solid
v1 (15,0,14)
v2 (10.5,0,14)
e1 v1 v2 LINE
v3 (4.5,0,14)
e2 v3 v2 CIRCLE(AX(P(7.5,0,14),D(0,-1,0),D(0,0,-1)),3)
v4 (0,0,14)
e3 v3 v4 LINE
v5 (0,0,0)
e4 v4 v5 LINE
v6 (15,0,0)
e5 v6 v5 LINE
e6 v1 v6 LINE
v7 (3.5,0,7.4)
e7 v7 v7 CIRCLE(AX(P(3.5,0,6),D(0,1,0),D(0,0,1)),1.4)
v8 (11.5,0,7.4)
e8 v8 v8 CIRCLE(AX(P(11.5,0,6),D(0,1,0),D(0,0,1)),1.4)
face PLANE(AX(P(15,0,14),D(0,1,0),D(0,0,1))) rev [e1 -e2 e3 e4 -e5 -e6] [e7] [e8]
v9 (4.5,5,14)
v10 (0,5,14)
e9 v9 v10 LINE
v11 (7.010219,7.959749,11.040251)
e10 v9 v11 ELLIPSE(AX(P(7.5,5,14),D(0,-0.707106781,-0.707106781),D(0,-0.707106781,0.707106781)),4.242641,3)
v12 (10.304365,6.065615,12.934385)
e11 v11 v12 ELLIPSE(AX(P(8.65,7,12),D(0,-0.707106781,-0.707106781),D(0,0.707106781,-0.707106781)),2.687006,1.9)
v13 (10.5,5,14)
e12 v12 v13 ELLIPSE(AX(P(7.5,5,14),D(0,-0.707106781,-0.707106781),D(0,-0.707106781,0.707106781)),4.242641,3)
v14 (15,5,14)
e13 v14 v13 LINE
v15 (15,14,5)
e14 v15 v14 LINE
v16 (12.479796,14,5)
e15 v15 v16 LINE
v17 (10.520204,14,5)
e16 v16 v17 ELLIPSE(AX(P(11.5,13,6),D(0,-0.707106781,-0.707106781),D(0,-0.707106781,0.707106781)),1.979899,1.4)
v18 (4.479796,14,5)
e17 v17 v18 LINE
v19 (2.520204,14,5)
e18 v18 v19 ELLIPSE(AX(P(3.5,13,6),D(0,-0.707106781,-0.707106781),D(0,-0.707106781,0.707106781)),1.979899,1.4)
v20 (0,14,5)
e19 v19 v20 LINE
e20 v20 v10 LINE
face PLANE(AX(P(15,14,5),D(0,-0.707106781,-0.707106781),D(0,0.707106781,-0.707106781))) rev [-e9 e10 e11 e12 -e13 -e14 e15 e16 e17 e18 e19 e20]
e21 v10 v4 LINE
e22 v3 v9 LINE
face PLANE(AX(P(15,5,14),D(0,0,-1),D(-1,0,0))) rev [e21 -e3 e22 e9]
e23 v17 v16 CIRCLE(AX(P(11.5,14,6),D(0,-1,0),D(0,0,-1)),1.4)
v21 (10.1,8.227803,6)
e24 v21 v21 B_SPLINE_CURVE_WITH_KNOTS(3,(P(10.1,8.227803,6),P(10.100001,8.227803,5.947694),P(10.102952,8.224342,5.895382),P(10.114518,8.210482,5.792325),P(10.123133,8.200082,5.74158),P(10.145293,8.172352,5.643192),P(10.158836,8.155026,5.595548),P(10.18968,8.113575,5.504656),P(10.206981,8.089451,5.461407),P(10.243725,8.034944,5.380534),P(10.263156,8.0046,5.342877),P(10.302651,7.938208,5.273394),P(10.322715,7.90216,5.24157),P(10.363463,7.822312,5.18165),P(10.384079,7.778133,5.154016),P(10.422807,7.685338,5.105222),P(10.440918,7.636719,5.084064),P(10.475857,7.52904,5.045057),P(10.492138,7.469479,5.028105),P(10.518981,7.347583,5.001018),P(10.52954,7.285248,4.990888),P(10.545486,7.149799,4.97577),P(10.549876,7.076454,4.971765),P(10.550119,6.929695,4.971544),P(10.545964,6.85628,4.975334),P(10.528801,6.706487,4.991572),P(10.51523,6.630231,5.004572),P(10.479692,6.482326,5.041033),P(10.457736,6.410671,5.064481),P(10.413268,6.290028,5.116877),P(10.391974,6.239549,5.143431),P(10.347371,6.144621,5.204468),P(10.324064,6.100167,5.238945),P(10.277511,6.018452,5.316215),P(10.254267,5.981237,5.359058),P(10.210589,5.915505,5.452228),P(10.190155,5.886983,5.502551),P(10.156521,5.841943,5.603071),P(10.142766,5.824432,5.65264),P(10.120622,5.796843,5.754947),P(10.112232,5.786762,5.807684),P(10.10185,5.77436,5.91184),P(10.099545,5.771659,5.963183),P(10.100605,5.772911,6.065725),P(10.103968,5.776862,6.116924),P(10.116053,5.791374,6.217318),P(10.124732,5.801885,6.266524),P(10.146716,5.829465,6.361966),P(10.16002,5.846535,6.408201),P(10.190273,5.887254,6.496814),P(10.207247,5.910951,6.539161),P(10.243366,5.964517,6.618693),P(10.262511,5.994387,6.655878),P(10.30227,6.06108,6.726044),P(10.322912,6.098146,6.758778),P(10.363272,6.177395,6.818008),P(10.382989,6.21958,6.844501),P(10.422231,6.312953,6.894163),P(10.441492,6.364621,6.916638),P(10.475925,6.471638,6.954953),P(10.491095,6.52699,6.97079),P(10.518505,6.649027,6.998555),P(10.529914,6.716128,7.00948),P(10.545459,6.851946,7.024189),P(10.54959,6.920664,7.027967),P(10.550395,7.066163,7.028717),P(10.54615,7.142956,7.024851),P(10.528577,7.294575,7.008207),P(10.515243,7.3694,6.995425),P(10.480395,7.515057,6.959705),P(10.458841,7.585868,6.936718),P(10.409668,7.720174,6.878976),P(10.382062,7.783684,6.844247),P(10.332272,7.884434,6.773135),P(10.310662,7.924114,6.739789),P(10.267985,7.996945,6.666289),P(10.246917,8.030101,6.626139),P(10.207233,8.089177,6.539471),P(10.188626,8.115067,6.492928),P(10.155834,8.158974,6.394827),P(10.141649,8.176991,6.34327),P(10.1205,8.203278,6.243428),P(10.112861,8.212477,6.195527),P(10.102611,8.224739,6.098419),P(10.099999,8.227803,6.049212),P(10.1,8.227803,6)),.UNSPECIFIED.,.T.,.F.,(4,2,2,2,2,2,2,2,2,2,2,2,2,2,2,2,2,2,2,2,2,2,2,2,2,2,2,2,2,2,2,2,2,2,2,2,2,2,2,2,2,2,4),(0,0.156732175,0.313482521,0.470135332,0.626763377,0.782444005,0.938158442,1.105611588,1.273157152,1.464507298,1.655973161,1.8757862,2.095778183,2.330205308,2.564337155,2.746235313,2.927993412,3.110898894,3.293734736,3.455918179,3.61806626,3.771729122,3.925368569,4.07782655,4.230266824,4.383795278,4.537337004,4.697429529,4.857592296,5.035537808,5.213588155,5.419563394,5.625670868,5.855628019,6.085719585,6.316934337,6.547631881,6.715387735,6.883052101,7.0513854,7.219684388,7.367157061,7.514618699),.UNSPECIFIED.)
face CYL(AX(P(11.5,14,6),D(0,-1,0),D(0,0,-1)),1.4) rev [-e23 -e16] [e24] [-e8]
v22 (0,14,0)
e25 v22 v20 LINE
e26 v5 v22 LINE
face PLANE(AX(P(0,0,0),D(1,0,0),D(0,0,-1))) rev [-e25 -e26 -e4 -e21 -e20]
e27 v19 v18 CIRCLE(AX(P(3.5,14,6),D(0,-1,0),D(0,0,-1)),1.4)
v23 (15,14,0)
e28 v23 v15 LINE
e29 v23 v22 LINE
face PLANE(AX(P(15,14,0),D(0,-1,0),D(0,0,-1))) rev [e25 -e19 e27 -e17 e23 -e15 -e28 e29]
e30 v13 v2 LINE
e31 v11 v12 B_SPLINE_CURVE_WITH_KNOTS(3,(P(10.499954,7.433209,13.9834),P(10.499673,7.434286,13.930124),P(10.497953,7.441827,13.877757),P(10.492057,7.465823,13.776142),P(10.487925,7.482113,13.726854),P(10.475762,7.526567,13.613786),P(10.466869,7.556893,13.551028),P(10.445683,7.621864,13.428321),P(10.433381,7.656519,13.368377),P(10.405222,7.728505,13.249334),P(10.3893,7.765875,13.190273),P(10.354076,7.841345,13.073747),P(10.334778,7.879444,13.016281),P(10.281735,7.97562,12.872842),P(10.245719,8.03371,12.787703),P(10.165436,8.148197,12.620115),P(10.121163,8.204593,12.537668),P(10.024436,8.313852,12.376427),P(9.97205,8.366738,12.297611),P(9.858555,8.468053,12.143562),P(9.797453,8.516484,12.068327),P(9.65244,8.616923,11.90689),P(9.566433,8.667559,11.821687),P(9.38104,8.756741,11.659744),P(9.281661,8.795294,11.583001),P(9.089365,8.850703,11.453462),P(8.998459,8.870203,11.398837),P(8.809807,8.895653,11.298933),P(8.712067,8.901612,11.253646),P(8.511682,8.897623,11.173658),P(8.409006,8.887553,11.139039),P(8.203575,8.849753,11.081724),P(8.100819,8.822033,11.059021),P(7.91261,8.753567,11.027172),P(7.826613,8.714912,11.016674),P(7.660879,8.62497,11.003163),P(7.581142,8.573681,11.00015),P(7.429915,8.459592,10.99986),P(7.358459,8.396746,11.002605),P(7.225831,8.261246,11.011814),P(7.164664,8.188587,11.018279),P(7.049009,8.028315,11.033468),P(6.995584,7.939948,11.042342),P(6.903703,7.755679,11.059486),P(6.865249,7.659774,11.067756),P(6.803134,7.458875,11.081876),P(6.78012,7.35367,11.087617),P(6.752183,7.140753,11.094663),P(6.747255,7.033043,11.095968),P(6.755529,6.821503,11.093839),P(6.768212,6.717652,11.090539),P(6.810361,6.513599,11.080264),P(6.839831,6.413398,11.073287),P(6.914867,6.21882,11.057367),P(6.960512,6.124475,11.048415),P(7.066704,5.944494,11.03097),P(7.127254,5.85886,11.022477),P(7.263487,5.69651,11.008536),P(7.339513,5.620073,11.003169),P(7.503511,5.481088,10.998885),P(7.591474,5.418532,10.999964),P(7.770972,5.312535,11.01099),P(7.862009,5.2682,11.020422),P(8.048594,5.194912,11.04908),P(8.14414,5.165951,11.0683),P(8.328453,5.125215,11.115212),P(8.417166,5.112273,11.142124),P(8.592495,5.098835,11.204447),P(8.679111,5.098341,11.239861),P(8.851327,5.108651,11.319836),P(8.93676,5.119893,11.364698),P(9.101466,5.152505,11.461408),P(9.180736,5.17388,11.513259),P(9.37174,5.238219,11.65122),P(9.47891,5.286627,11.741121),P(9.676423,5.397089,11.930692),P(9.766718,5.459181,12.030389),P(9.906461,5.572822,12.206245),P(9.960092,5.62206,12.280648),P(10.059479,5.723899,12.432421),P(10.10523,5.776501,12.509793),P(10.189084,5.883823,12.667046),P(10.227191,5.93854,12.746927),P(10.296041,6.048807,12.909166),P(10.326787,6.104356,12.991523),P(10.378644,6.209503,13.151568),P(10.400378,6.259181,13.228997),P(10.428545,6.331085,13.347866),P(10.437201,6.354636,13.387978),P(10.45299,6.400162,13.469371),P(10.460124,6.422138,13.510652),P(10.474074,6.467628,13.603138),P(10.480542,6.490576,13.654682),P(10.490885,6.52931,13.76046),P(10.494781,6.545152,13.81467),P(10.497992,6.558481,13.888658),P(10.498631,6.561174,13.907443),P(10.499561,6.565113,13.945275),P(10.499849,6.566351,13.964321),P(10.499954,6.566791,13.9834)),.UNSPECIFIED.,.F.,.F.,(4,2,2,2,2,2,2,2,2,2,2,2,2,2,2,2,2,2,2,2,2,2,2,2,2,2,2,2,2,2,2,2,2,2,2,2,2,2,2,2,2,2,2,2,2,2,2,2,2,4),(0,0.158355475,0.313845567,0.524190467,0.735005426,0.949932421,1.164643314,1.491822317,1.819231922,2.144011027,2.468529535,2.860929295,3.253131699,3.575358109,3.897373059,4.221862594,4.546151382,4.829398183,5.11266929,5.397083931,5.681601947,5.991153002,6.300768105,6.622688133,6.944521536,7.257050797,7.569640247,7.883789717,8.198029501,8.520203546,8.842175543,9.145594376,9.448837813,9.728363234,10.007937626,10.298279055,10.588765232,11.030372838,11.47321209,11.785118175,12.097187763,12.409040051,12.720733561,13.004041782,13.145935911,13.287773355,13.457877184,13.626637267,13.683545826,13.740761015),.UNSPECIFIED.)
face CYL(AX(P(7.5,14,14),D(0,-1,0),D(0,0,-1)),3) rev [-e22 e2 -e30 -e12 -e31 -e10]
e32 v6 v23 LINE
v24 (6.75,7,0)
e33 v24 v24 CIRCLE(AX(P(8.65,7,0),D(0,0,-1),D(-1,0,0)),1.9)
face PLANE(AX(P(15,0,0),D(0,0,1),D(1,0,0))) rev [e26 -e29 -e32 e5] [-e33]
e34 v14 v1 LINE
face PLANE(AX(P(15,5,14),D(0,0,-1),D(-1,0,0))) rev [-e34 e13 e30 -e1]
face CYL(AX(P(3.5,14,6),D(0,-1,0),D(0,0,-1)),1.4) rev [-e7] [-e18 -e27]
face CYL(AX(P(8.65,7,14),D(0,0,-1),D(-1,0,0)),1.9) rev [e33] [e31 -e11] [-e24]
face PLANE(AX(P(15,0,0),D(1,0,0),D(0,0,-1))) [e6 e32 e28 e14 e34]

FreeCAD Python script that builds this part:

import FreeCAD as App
import Part
import Sketcher

V = App.Vector

doc = App.newDocument("Part")
params = doc.addObject("Spreadsheet::Sheet", "Params")
for row, (alias, value) in enumerate([
    ("sketch1_width", "14 mm"),
    ("sketch1_width2", "5 mm"),
    ("pad1_length", "15 mm"),
    ("sketch2_diameter", "2.8 mm"),
    ("sketch3_diameter", "3.8 mm"),
    ("sketch4_diameter", "6 mm"),
], start=1):
    params.set(f"A{row}", alias)
    params.set(f"B{row}", "=" + value)
    params.setAlias(f"B{row}", alias)

body = doc.addObject("PartDesign::Body", "Body")

# Sketch on YZ plane
sketch1 = doc.addObject("Sketcher::SketchObject", "Sketch")
body.addObject(sketch1)
sketch1.AttachmentSupport = (doc.YZ_Plane, [""])
sketch1.MapMode = "FlatFace"
sketch1.addGeometry([
    Part.LineSegment(V(0, 14, 0), V(0, 0, 0)),  # 0
    Part.LineSegment(V(0, 0, 0), V(14, 0, 0)),  # 1
    Part.LineSegment(V(14, 0, 0), V(14, 5, 0)),  # 2
    Part.LineSegment(V(14, 5, 0), V(5, 14, 0)),  # 3
    Part.LineSegment(V(5, 14, 0), V(0, 14, 0)),  # 4
], False)
sketch1.addConstraint([
    Sketcher.Constraint("Coincident", 0, 2, 1, 1),
    Sketcher.Constraint("Coincident", 1, 2, 2, 1),
    Sketcher.Constraint("Coincident", 2, 2, 3, 1),
    Sketcher.Constraint("Coincident", 3, 2, 4, 1),
    Sketcher.Constraint("Coincident", 4, 2, 0, 1),
    Sketcher.Constraint("Vertical", 0),
    Sketcher.Constraint("Horizontal", 1),
    Sketcher.Constraint("Vertical", 2),
    Sketcher.Constraint("Horizontal", 4),
    Sketcher.Constraint("Coincident", 0, 2, -1, 1),
    Sketcher.Constraint("Equal", 1, 0),
    Sketcher.Constraint("Equal", 4, 2),
    Sketcher.Constraint("DistanceX", 1, 1, 1, 2, 14.0),
    Sketcher.Constraint("DistanceX", 4, 2, 4, 1, 5.0),
])
sketch1.setExpression("Constraints[12]", "Params.sketch1_width")
sketch1.setExpression("Constraints[13]", "Params.sketch1_width2")
pad1 = doc.addObject("PartDesign::Pad", "Pad")
body.addObject(pad1)
pad1.Profile = sketch1
pad1.setExpression("Length", "Params.pad1_length")

# Sketch on XZ plane
sketch2 = doc.addObject("Sketcher::SketchObject", "Sketch001")
body.addObject(sketch2)
sketch2.AttachmentSupport = (doc.XZ_Plane, [""])
sketch2.MapMode = "FlatFace"
sketch2.addGeometry([
    Part.Circle(V(11.5, 6, 0), V(0, 0, 1), 1.4),
    Part.Circle(V(3.5, 6, 0), V(0, 0, 1), 1.4),
], False)
sketch2.addConstraint([
    Sketcher.Constraint("Equal", 0, 1),
    Sketcher.Constraint("Horizontal", 0, 3, 1, 3),
    Sketcher.Constraint("Diameter", 0, 2.8),
    Sketcher.Constraint("DistanceY", -1, 1, 0, 3, 6.0),
    Sketcher.Constraint("DistanceX", 1, 3, 0, 3, 8.0),
    Sketcher.Constraint("DistanceX", -1, 1, 0, 3, 11.5),
])
sketch2.setExpression("Constraints[2]", "Params.sketch2_diameter")
pocket1 = doc.addObject("PartDesign::Pocket", "Pocket")
body.addObject(pocket1)
pocket1.Profile = sketch2
pocket1.Type = "ThroughAll"
pocket1.Midplane = True

# Sketch on XY plane
sketch3 = doc.addObject("Sketcher::SketchObject", "Sketch002")
body.addObject(sketch3)
sketch3.AttachmentSupport = (doc.XY_Plane, [""])
sketch3.MapMode = "FlatFace"
sketch3.addGeometry(Part.Circle(V(8.7, 7, 0), V(0, 0, 1), 1.9), False)
sketch3.addConstraint([
    Sketcher.Constraint("Diameter", 0, 3.8),
    Sketcher.Constraint("DistanceY", -1, 1, 0, 3, 7.0),
    Sketcher.Constraint("DistanceX", -1, 1, 0, 3, 8.65),
])
sketch3.setExpression("Constraints[0]", "Params.sketch3_diameter")
pocket2 = doc.addObject("PartDesign::Pocket", "Pocket001")
body.addObject(pocket2)
pocket2.Profile = sketch3
pocket2.Type = "ThroughAll"
pocket2.Reversed = True

# Sketch on XZ plane
sketch4 = doc.addObject("Sketcher::SketchObject", "Sketch003")
body.addObject(sketch4)
sketch4.AttachmentSupport = (doc.XZ_Plane, [""])
sketch4.MapMode = "FlatFace"
sketch4.addGeometry(Part.Circle(V(7.5, 14, 0), V(0, 0, 1), 3), False)
sketch4.addConstraint([
    Sketcher.Constraint("Diameter", 0, 6.0),
    Sketcher.Constraint("DistanceY", -1, 1, 0, 3, 14.0),
    Sketcher.Constraint("DistanceX", -1, 1, 0, 3, 7.5),
])
sketch4.setExpression("Constraints[0]", "Params.sketch4_diameter")
pocket3 = doc.addObject("PartDesign::Pocket", "Pocket002")
body.addObject(pocket3)
pocket3.Profile = sketch4
pocket3.Type = "ThroughAll"

doc.recompute()
